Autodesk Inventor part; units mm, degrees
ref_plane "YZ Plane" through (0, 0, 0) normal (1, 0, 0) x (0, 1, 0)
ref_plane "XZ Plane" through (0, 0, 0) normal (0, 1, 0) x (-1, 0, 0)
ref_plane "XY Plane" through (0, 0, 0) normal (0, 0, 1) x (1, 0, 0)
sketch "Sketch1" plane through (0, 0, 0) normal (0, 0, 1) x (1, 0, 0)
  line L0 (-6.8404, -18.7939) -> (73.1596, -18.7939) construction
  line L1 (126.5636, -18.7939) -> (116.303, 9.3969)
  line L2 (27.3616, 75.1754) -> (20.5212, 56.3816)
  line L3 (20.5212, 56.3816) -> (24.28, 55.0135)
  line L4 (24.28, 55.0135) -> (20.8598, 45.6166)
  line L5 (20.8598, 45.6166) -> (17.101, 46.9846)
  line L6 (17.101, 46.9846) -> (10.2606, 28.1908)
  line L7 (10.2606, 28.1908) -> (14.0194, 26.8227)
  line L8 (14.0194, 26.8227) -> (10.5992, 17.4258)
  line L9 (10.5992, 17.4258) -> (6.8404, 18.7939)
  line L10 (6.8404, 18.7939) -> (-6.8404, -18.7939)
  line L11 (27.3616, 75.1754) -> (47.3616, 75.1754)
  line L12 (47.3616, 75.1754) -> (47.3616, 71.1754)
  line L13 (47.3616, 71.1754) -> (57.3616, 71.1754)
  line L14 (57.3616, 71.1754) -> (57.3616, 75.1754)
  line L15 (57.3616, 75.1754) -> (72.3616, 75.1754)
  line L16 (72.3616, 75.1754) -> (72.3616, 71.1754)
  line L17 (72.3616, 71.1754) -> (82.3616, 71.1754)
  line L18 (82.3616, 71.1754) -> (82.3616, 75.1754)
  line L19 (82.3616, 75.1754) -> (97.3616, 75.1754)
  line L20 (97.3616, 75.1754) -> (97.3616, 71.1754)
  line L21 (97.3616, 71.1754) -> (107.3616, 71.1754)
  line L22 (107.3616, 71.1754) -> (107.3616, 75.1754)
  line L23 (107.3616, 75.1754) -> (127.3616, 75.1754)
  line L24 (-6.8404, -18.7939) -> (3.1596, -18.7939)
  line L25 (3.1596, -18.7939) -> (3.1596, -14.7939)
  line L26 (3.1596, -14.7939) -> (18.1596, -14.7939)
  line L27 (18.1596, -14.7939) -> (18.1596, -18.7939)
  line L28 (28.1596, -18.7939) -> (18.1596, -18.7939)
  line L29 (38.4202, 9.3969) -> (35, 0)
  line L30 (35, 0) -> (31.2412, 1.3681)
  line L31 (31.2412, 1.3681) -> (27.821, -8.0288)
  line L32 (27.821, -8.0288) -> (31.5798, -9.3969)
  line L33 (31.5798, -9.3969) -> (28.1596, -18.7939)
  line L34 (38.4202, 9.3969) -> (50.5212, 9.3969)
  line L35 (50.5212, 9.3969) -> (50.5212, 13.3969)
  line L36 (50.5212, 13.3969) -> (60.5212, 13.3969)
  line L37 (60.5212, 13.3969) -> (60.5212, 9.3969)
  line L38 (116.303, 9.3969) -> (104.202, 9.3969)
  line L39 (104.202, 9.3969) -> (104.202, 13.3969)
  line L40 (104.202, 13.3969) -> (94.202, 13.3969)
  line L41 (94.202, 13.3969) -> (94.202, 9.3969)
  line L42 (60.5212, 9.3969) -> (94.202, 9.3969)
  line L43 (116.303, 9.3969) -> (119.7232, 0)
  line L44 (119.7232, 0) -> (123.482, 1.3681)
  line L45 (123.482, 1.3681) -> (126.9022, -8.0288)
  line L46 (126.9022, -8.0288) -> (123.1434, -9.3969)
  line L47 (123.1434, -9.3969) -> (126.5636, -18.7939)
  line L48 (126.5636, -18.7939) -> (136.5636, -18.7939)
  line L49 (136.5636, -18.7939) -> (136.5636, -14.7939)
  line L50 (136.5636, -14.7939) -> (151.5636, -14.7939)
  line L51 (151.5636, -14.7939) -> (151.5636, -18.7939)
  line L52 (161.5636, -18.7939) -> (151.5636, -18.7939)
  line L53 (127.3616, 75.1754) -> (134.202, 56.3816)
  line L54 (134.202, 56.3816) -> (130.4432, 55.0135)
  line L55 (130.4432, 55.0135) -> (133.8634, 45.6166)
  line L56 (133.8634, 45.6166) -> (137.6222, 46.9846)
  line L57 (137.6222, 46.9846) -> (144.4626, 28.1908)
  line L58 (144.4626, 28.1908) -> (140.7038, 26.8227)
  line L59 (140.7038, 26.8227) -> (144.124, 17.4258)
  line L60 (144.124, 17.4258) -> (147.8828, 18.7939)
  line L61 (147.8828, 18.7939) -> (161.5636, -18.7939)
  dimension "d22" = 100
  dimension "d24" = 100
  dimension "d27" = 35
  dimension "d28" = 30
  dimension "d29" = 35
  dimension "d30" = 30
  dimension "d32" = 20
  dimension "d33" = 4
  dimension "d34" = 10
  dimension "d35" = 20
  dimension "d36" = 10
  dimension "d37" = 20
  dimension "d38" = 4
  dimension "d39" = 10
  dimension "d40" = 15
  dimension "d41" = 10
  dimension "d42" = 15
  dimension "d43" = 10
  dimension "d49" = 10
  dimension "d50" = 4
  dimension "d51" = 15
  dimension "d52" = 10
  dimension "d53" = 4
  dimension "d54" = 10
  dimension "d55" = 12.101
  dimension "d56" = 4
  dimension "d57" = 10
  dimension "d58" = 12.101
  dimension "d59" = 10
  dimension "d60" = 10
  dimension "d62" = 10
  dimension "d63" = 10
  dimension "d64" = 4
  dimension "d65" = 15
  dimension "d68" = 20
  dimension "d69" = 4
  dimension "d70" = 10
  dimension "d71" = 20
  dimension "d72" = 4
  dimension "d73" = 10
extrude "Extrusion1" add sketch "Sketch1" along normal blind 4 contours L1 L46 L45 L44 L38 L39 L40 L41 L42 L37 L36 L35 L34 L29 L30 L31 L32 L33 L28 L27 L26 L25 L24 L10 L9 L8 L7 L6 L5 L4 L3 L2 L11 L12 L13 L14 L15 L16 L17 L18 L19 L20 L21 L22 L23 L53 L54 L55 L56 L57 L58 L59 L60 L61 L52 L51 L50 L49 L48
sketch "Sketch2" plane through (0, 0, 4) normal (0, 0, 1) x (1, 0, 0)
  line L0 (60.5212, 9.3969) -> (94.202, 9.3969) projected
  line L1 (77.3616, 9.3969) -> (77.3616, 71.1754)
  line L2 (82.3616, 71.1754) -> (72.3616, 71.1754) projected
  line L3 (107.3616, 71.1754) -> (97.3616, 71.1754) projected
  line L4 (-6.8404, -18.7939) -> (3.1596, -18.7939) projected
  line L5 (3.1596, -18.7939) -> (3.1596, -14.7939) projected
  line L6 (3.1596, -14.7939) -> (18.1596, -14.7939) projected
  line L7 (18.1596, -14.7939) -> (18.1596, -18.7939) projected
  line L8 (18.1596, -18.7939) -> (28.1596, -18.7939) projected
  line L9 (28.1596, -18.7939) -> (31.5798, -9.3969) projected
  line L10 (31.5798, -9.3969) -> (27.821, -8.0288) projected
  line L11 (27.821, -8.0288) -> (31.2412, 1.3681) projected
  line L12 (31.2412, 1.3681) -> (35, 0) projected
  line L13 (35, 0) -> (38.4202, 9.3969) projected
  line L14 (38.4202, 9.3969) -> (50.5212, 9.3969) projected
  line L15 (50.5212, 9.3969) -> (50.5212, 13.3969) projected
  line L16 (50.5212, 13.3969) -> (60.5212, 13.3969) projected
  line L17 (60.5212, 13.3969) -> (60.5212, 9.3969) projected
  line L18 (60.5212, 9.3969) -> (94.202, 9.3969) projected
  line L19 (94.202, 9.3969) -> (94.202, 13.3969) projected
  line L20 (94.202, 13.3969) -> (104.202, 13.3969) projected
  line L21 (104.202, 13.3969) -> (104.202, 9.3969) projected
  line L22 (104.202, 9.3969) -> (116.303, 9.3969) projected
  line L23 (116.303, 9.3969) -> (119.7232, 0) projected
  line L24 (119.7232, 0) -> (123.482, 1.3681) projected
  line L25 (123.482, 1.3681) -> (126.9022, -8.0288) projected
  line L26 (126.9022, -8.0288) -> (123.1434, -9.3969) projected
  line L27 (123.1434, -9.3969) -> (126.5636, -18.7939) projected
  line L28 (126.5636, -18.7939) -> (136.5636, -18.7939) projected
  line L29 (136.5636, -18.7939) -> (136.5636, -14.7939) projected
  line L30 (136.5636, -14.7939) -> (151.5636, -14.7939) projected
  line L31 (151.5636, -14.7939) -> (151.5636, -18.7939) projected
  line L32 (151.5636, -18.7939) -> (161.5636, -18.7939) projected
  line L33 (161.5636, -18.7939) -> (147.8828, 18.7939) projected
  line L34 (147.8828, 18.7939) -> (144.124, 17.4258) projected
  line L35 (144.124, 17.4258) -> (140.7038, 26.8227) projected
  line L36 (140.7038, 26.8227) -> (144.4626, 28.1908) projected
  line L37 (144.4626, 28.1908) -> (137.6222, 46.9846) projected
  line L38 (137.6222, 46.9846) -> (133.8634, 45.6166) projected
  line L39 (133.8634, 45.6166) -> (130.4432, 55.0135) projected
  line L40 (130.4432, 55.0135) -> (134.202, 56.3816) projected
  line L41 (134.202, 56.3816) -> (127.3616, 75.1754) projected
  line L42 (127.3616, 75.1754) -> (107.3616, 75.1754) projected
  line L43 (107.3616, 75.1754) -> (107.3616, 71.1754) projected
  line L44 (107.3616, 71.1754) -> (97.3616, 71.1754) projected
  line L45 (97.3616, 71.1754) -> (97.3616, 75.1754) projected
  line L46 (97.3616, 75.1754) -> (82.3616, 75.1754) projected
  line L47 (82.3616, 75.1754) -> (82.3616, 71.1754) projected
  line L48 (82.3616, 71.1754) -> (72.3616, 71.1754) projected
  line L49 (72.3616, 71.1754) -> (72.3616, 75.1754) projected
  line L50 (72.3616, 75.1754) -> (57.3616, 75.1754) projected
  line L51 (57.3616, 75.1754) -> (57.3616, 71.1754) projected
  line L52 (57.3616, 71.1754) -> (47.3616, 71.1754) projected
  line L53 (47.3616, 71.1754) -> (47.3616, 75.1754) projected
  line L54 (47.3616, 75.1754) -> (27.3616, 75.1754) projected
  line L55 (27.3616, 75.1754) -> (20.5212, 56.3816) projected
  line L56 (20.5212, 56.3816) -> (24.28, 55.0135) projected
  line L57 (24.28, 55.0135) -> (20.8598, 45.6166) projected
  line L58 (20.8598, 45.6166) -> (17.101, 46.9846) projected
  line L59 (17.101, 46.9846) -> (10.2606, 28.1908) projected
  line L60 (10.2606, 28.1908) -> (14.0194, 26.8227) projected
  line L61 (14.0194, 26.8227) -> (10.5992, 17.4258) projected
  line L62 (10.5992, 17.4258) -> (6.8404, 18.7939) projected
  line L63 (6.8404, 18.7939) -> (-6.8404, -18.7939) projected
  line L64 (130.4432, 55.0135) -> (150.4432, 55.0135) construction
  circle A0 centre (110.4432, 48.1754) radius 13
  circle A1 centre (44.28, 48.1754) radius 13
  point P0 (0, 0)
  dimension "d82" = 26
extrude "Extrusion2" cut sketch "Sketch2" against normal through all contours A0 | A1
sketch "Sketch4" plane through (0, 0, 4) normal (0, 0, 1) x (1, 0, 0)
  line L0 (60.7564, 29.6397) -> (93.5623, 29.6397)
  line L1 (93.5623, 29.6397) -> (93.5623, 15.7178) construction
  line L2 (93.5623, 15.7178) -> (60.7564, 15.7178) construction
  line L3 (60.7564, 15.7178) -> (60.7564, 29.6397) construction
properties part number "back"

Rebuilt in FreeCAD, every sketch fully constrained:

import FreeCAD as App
import Part
import Sketcher
Q = App.Units.Quantity

doc = App.newDocument("Part")
body = doc.addObject("PartDesign::Body", "Body")

sketch1 = body.newObject("Sketcher::SketchObject", "Sketch")
sketch1.AttachmentSupport = (doc.getObject("XY_Plane"), [""])
sketch1.MapMode = "FlatFace"
sketch1.addGeometry(Part.LineSegment(App.Vector(123.1, -9.4, 0), App.Vector(126.6, -18.8, 0)), False)
sketch1.addGeometry(Part.LineSegment(App.Vector(126.6, -18.8, 0), App.Vector(136.6, -18.8, 0)), False)
sketch1.addGeometry(Part.LineSegment(App.Vector(136.6, -18.8, 0), App.Vector(136.6, -14.8, 0)), False)
sketch1.addGeometry(Part.LineSegment(App.Vector(136.6, -14.8, 0), App.Vector(151.6, -14.8, 0)), False)
sketch1.addGeometry(Part.LineSegment(App.Vector(151.6, -14.8, 0), App.Vector(151.6, -18.8, 0)), False)
sketch1.addGeometry(Part.LineSegment(App.Vector(151.6, -18.8, 0), App.Vector(161.6, -18.8, 0)), False)
sketch1.addGeometry(Part.LineSegment(App.Vector(161.6, -18.8, 0), App.Vector(147.9, 18.8, 0)), False)
sketch1.addGeometry(Part.LineSegment(App.Vector(147.9, 18.8, 0), App.Vector(144.1, 17.4, 0)), False)
sketch1.addGeometry(Part.LineSegment(App.Vector(144.1, 17.4, 0), App.Vector(140.7, 26.8, 0)), False)
sketch1.addGeometry(Part.LineSegment(App.Vector(140.7, 26.8, 0), App.Vector(144.5, 28.2, 0)), False)
sketch1.addGeometry(Part.LineSegment(App.Vector(144.5, 28.2, 0), App.Vector(137.6, 47, 0)), False)
sketch1.addGeometry(Part.LineSegment(App.Vector(137.6, 47, 0), App.Vector(133.9, 45.6, 0)), False)
sketch1.addGeometry(Part.LineSegment(App.Vector(133.9, 45.6, 0), App.Vector(130.4, 55, 0)), False)
sketch1.addGeometry(Part.LineSegment(App.Vector(130.4, 55, 0), App.Vector(134.2, 56.4, 0)), False)
sketch1.addGeometry(Part.LineSegment(App.Vector(134.2, 56.4, 0), App.Vector(127.4, 75.2, 0)), False)
sketch1.addGeometry(Part.LineSegment(App.Vector(127.4, 75.2, 0), App.Vector(107.4, 75.2, 0)), False)
sketch1.addGeometry(Part.LineSegment(App.Vector(107.4, 75.2, 0), App.Vector(107.4, 71.2, 0)), False)
sketch1.addGeometry(Part.LineSegment(App.Vector(107.4, 71.2, 0), App.Vector(97.4, 71.2, 0)), False)
sketch1.addGeometry(Part.LineSegment(App.Vector(97.4, 71.2, 0), App.Vector(97.4, 75.2, 0)), False)
sketch1.addGeometry(Part.LineSegment(App.Vector(97.4, 75.2, 0), App.Vector(82.4, 75.2, 0)), False)
sketch1.addGeometry(Part.LineSegment(App.Vector(82.4, 75.2, 0), App.Vector(82.4, 71.2, 0)), False)
sketch1.addGeometry(Part.LineSegment(App.Vector(82.4, 71.2, 0), App.Vector(72.4, 71.2, 0)), False)
sketch1.addGeometry(Part.LineSegment(App.Vector(72.4, 71.2, 0), App.Vector(72.4, 75.2, 0)), False)
sketch1.addGeometry(Part.LineSegment(App.Vector(72.4, 75.2, 0), App.Vector(57.4, 75.2, 0)), False)
sketch1.addGeometry(Part.LineSegment(App.Vector(57.4, 75.2, 0), App.Vector(57.4, 71.2, 0)), False)
sketch1.addGeometry(Part.LineSegment(App.Vector(57.4, 71.2, 0), App.Vector(47.4, 71.2, 0)), False)
sketch1.addGeometry(Part.LineSegment(App.Vector(47.4, 71.2, 0), App.Vector(47.4, 75.2, 0)), False)
sketch1.addGeometry(Part.LineSegment(App.Vector(47.4, 75.2, 0), App.Vector(27.4, 75.2, 0)), False)
sketch1.addGeometry(Part.LineSegment(App.Vector(27.4, 75.2, 0), App.Vector(20.5, 56.4, 0)), False)
sketch1.addGeometry(Part.LineSegment(App.Vector(20.5, 56.4, 0), App.Vector(24.3, 55, 0)), False)
sketch1.addGeometry(Part.LineSegment(App.Vector(24.3, 55, 0), App.Vector(20.9, 45.6, 0)), False)
sketch1.addGeometry(Part.LineSegment(App.Vector(20.9, 45.6, 0), App.Vector(17.1, 47, 0)), False)
sketch1.addGeometry(Part.LineSegment(App.Vector(17.1, 47, 0), App.Vector(10.3, 28.2, 0)), False)
sketch1.addGeometry(Part.LineSegment(App.Vector(10.3, 28.2, 0), App.Vector(14, 26.8, 0)), False)
sketch1.addGeometry(Part.LineSegment(App.Vector(14, 26.8, 0), App.Vector(10.6, 17.4, 0)), False)
sketch1.addGeometry(Part.LineSegment(App.Vector(10.6, 17.4, 0), App.Vector(6.8, 18.8, 0)), False)
sketch1.addGeometry(Part.LineSegment(App.Vector(6.8, 18.8, 0), App.Vector(-6.8, -18.8, 0)), False)
sketch1.addGeometry(Part.LineSegment(App.Vector(-6.8, -18.8, 0), App.Vector(3.2, -18.8, 0)), False)
sketch1.addGeometry(Part.LineSegment(App.Vector(3.2, -18.8, 0), App.Vector(3.2, -14.8, 0)), False)
sketch1.addGeometry(Part.LineSegment(App.Vector(3.2, -14.8, 0), App.Vector(18.2, -14.8, 0)), False)
sketch1.addGeometry(Part.LineSegment(App.Vector(18.2, -14.8, 0), App.Vector(18.2, -18.8, 0)), False)
sketch1.addGeometry(Part.LineSegment(App.Vector(18.2, -18.8, 0), App.Vector(28.2, -18.8, 0)), False)
sketch1.addGeometry(Part.LineSegment(App.Vector(28.2, -18.8, 0), App.Vector(31.6, -9.4, 0)), False)
sketch1.addGeometry(Part.LineSegment(App.Vector(31.6, -9.4, 0), App.Vector(27.8, -8, 0)), False)
sketch1.addGeometry(Part.LineSegment(App.Vector(27.8, -8, 0), App.Vector(31.2, 1.4, 0)), False)
sketch1.addGeometry(Part.LineSegment(App.Vector(31.2, 1.4, 0), App.Vector(35, 0, 0)), False)
sketch1.addGeometry(Part.LineSegment(App.Vector(35, 0, 0), App.Vector(38.4, 9.4, 0)), False)
sketch1.addGeometry(Part.LineSegment(App.Vector(38.4, 9.4, 0), App.Vector(50.5, 9.4, 0)), False)
sketch1.addGeometry(Part.LineSegment(App.Vector(50.5, 9.4, 0), App.Vector(50.5, 13.4, 0)), False)
sketch1.addGeometry(Part.LineSegment(App.Vector(50.5, 13.4, 0), App.Vector(60.5, 13.4, 0)), False)
sketch1.addGeometry(Part.LineSegment(App.Vector(60.5, 13.4, 0), App.Vector(60.5, 9.4, 0)), False)
sketch1.addGeometry(Part.LineSegment(App.Vector(60.5, 9.4, 0), App.Vector(94.2, 9.4, 0)), False)
sketch1.addGeometry(Part.LineSegment(App.Vector(94.2, 9.4, 0), App.Vector(94.2, 13.4, 0)), False)
sketch1.addGeometry(Part.LineSegment(App.Vector(94.2, 13.4, 0), App.Vector(104.2, 13.4, 0)), False)
sketch1.addGeometry(Part.LineSegment(App.Vector(104.2, 13.4, 0), App.Vector(104.2, 9.4, 0)), False)
sketch1.addGeometry(Part.LineSegment(App.Vector(104.2, 9.4, 0), App.Vector(116.3, 9.4, 0)), False)
sketch1.addGeometry(Part.LineSegment(App.Vector(116.3, 9.4, 0), App.Vector(119.7, 0, 0)), False)
sketch1.addGeometry(Part.LineSegment(App.Vector(119.7, 0, 0), App.Vector(123.5, 1.4, 0)), False)
sketch1.addGeometry(Part.LineSegment(App.Vector(123.5, 1.4, 0), App.Vector(126.9, -8, 0)), False)
sketch1.addGeometry(Part.LineSegment(App.Vector(126.9, -8, 0), App.Vector(123.1, -9.4, 0)), False)
sketch1.addConstraint(Sketcher.Constraint("Coincident", 0, 2, 1, 1))
sketch1.addConstraint(Sketcher.Constraint("Coincident", 1, 2, 2, 1))
sketch1.addConstraint(Sketcher.Constraint("Coincident", 2, 2, 3, 1))
sketch1.addConstraint(Sketcher.Constraint("Coincident", 3, 2, 4, 1))
sketch1.addConstraint(Sketcher.Constraint("Coincident", 4, 2, 5, 1))
sketch1.addConstraint(Sketcher.Constraint("Coincident", 5, 2, 6, 1))
sketch1.addConstraint(Sketcher.Constraint("Coincident", 6, 2, 7, 1))
sketch1.addConstraint(Sketcher.Constraint("Coincident", 7, 2, 8, 1))
sketch1.addConstraint(Sketcher.Constraint("Coincident", 8, 2, 9, 1))
sketch1.addConstraint(Sketcher.Constraint("Coincident", 9, 2, 10, 1))
sketch1.addConstraint(Sketcher.Constraint("Coincident", 10, 2, 11, 1))
sketch1.addConstraint(Sketcher.Constraint("Coincident", 11, 2, 12, 1))
sketch1.addConstraint(Sketcher.Constraint("Coincident", 12, 2, 13, 1))
sketch1.addConstraint(Sketcher.Constraint("Coincident", 13, 2, 14, 1))
sketch1.addConstraint(Sketcher.Constraint("Coincident", 14, 2, 15, 1))
sketch1.addConstraint(Sketcher.Constraint("Coincident", 15, 2, 16, 1))
sketch1.addConstraint(Sketcher.Constraint("Coincident", 16, 2, 17, 1))
sketch1.addConstraint(Sketcher.Constraint("Coincident", 17, 2, 18, 1))
sketch1.addConstraint(Sketcher.Constraint("Coincident", 18, 2, 19, 1))
sketch1.addConstraint(Sketcher.Constraint("Coincident", 19, 2, 20, 1))
sketch1.addConstraint(Sketcher.Constraint("Coincident", 20, 2, 21, 1))
sketch1.addConstraint(Sketcher.Constraint("Coincident", 21, 2, 22, 1))
sketch1.addConstraint(Sketcher.Constraint("Coincident", 22, 2, 23, 1))
sketch1.addConstraint(Sketcher.Constraint("Coincident", 23, 2, 24, 1))
sketch1.addConstraint(Sketcher.Constraint("Coincident", 24, 2, 25, 1))
sketch1.addConstraint(Sketcher.Constraint("Coincident", 25, 2, 26, 1))
sketch1.addConstraint(Sketcher.Constraint("Coincident", 26, 2, 27, 1))
sketch1.addConstraint(Sketcher.Constraint("Coincident", 27, 2, 28, 1))
sketch1.addConstraint(Sketcher.Constraint("Coincident", 28, 2, 29, 1))
sketch1.addConstraint(Sketcher.Constraint("Coincident", 29, 2, 30, 1))
sketch1.addConstraint(Sketcher.Constraint("Coincident", 30, 2, 31, 1))
sketch1.addConstraint(Sketcher.Constraint("Coincident", 31, 2, 32, 1))
sketch1.addConstraint(Sketcher.Constraint("Coincident", 32, 2, 33, 1))
sketch1.addConstraint(Sketcher.Constraint("Coincident", 33, 2, 34, 1))
sketch1.addConstraint(Sketcher.Constraint("Coincident", 34, 2, 35, 1))
sketch1.addConstraint(Sketcher.Constraint("Coincident", 35, 2, 36, 1))
sketch1.addConstraint(Sketcher.Constraint("Coincident", 36, 2, 37, 1))
sketch1.addConstraint(Sketcher.Constraint("Coincident", 37, 2, 38, 1))
sketch1.addConstraint(Sketcher.Constraint("Coincident", 38, 2, 39, 1))
sketch1.addConstraint(Sketcher.Constraint("Coincident", 39, 2, 40, 1))
sketch1.addConstraint(Sketcher.Constraint("Coincident", 40, 2, 41, 1))
sketch1.addConstraint(Sketcher.Constraint("Coincident", 41, 2, 42, 1))
sketch1.addConstraint(Sketcher.Constraint("Coincident", 42, 2, 43, 1))
sketch1.addConstraint(Sketcher.Constraint("Coincident", 43, 2, 44, 1))
sketch1.addConstraint(Sketcher.Constraint("Coincident", 44, 2, 45, 1))
sketch1.addConstraint(Sketcher.Constraint("Coincident", 45, 2, 46, 1))
sketch1.addConstraint(Sketcher.Constraint("Coincident", 46, 2, 47, 1))
sketch1.addConstraint(Sketcher.Constraint("Coincident", 47, 2, 48, 1))
sketch1.addConstraint(Sketcher.Constraint("Coincident", 48, 2, 49, 1))
sketch1.addConstraint(Sketcher.Constraint("Coincident", 49, 2, 50, 1))
sketch1.addConstraint(Sketcher.Constraint("Coincident", 50, 2, 51, 1))
sketch1.addConstraint(Sketcher.Constraint("Coincident", 51, 2, 52, 1))
sketch1.addConstraint(Sketcher.Constraint("Coincident", 52, 2, 53, 1))
sketch1.addConstraint(Sketcher.Constraint("Coincident", 53, 2, 54, 1))
sketch1.addConstraint(Sketcher.Constraint("Coincident", 54, 2, 55, 1))
sketch1.addConstraint(Sketcher.Constraint("Coincident", 55, 2, 56, 1))
sketch1.addConstraint(Sketcher.Constraint("Coincident", 56, 2, 57, 1))
sketch1.addConstraint(Sketcher.Constraint("Coincident", 57, 2, 58, 1))
sketch1.addConstraint(Sketcher.Constraint("Coincident", 58, 2, 59, 1))
sketch1.addConstraint(Sketcher.Constraint("Coincident", 59, 2, 0, 1))
sketch1.addConstraint(Sketcher.Constraint("Horizontal", 1))
sketch1.addConstraint(Sketcher.Constraint("Vertical", 2))
sketch1.addConstraint(Sketcher.Constraint("Horizontal", 3))
sketch1.addConstraint(Sketcher.Constraint("Vertical", 4))
sketch1.addConstraint(Sketcher.Constraint("Horizontal", 5))
sketch1.addConstraint(Sketcher.Constraint("Horizontal", 15))
sketch1.addConstraint(Sketcher.Constraint("Vertical", 16))
sketch1.addConstraint(Sketcher.Constraint("Horizontal", 17))
sketch1.addConstraint(Sketcher.Constraint("Vertical", 18))
sketch1.addConstraint(Sketcher.Constraint("Horizontal", 19))
sketch1.addConstraint(Sketcher.Constraint("Vertical", 20))
sketch1.addConstraint(Sketcher.Constraint("Horizontal", 21))
sketch1.addConstraint(Sketcher.Constraint("Vertical", 22))
sketch1.addConstraint(Sketcher.Constraint("Horizontal", 23))
sketch1.addConstraint(Sketcher.Constraint("Vertical", 24))
sketch1.addConstraint(Sketcher.Constraint("Horizontal", 25))
sketch1.addConstraint(Sketcher.Constraint("Vertical", 26))
sketch1.addConstraint(Sketcher.Constraint("Horizontal", 27))
sketch1.addConstraint(Sketcher.Constraint("Horizontal", 37))
sketch1.addConstraint(Sketcher.Constraint("Vertical", 38))
sketch1.addConstraint(Sketcher.Constraint("Horizontal", 39))
sketch1.addConstraint(Sketcher.Constraint("Vertical", 40))
sketch1.addConstraint(Sketcher.Constraint("Horizontal", 41))
sketch1.addConstraint(Sketcher.Constraint("Horizontal", 47))
sketch1.addConstraint(Sketcher.Constraint("Vertical", 48))
sketch1.addConstraint(Sketcher.Constraint("Horizontal", 49))
sketch1.addConstraint(Sketcher.Constraint("Vertical", 50))
sketch1.addConstraint(Sketcher.Constraint("Horizontal", 51))
sketch1.addConstraint(Sketcher.Constraint("Vertical", 52))
sketch1.addConstraint(Sketcher.Constraint("Horizontal", 53))
sketch1.addConstraint(Sketcher.Constraint("Vertical", 54))
sketch1.addConstraint(Sketcher.Constraint("Horizontal", 55))
sketch1.addConstraint(Sketcher.Constraint("Symmetric", 35, 2, 36, 2, -1, 1))
sketch1.addConstraint(Sketcher.Constraint("PointOnObject", 45, 2, -1))
sketch1.addConstraint(Sketcher.Constraint("PointOnObject", 56, 2, -1))
sketch1.addConstraint(Sketcher.Constraint("Parallel", 0, 6))
sketch1.addConstraint(Sketcher.Constraint("Perpendicular", 6, 7))
sketch1.addConstraint(Sketcher.Constraint("Perpendicular", 7, 8))
sketch1.addConstraint(Sketcher.Constraint("Perpendicular", 8, 9))
sketch1.addConstraint(Sketcher.Constraint("Perpendicular", 9, 10))
sketch1.addConstraint(Sketcher.Constraint("Perpendicular", 10, 11))
sketch1.addConstraint(Sketcher.Constraint("Perpendicular", 11, 12))
sketch1.addConstraint(Sketcher.Constraint("Perpendicular", 12, 13))
sketch1.addConstraint(Sketcher.Constraint("Perpendicular", 13, 14))
sketch1.addConstraint(Sketcher.Constraint("Perpendicular", 28, 29))
sketch1.addConstraint(Sketcher.Constraint("Perpendicular", 29, 30))
sketch1.addConstraint(Sketcher.Constraint("Perpendicular", 30, 31))
sketch1.addConstraint(Sketcher.Constraint("Perpendicular", 31, 32))
sketch1.addConstraint(Sketcher.Constraint("Perpendicular", 32, 33))
sketch1.addConstraint(Sketcher.Constraint("Perpendicular", 33, 34))
sketch1.addConstraint(Sketcher.Constraint("Perpendicular", 34, 35))
sketch1.addConstraint(Sketcher.Constraint("Perpendicular", 35, 36))
sketch1.addConstraint(Sketcher.Constraint("Parallel", 36, 42))
sketch1.addConstraint(Sketcher.Constraint("Perpendicular", 42, 43))
sketch1.addConstraint(Sketcher.Constraint("Perpendicular", 43, 44))
sketch1.addConstraint(Sketcher.Constraint("Perpendicular", 44, 45))
sketch1.addConstraint(Sketcher.Constraint("Perpendicular", 45, 46))
sketch1.addConstraint(Sketcher.Constraint("Parallel", 14, 56))
sketch1.addConstraint(Sketcher.Constraint("Perpendicular", 56, 57))
sketch1.addConstraint(Sketcher.Constraint("Perpendicular", 57, 58))
sketch1.addConstraint(Sketcher.Constraint("Perpendicular", 58, 59))
sketch1.addConstraint(Sketcher.Constraint("Horizontal", 1, 2, 4, 2))
sketch1.addConstraint(Sketcher.Constraint("Horizontal", 15, 2, 18, 2))
sketch1.addConstraint(Sketcher.Constraint("Horizontal", 17, 2, 20, 2))
sketch1.addConstraint(Sketcher.Constraint("Horizontal", 19, 2, 22, 2))
sketch1.addConstraint(Sketcher.Constraint("Horizontal", 21, 2, 24, 2))
sketch1.addConstraint(Sketcher.Constraint("Horizontal", 23, 2, 26, 2))
sketch1.addConstraint(Sketcher.Constraint("Horizontal", 13, 2, 28, 2))
sketch1.addConstraint(Sketcher.Constraint("Horizontal", 12, 2, 29, 2))
sketch1.addConstraint(Sketcher.Constraint("Horizontal", 11, 2, 30, 2))
sketch1.addConstraint(Sketcher.Constraint("Horizontal", 10, 2, 31, 2))
sketch1.addConstraint(Sketcher.Constraint("Horizontal", 9, 2, 32, 2))
sketch1.addConstraint(Sketcher.Constraint("Horizontal", 8, 2, 33, 2))
sketch1.addConstraint(Sketcher.Constraint("Horizontal", 7, 2, 34, 2))
sketch1.addConstraint(Sketcher.Constraint("Horizontal", 6, 2, 35, 2))
sketch1.addConstraint(Sketcher.Constraint("Horizontal", 5, 2, 36, 2))
sketch1.addConstraint(Sketcher.Constraint("Horizontal", 3, 2, 38, 2))
sketch1.addConstraint(Sketcher.Constraint("Horizontal", 37, 2, 40, 2))
sketch1.addConstraint(Sketcher.Constraint("Horizontal", 47, 2, 50, 2))
sketch1.addConstraint(Sketcher.Constraint("Horizontal", 49, 2, 52, 2))
sketch1.addConstraint(Sketcher.Constraint("Horizontal", 51, 2, 54, 2))
sketch1.addConstraint(Sketcher.Constraint("Horizontal", 44, 2, 57, 2))
sketch1.addConstraint(Sketcher.Constraint("Horizontal", 43, 2, 58, 2))
sketch1.addConstraint(Sketcher.Constraint("Horizontal", 42, 2, 59, 2))
sketch1.addConstraint(Sketcher.Constraint("Equal", 1, 5))
sketch1.addConstraint(Sketcher.Constraint("Equal", 5, 17))
sketch1.addConstraint(Sketcher.Constraint("Equal", 3, 19))
sketch1.addConstraint(Sketcher.Constraint("Equal", 17, 21))
sketch1.addConstraint(Sketcher.Constraint("Equal", 19, 23))
sketch1.addConstraint(Sketcher.Constraint("Equal", 21, 25))
sketch1.addConstraint(Sketcher.Constraint("Equal", 15, 27))
sketch1.addConstraint(Sketcher.Constraint("Equal", 25, 37))
sketch1.addConstraint(Sketcher.Constraint("Equal", 23, 39))
sketch1.addConstraint(Sketcher.Constraint("Equal", 37, 41))
sketch1.addConstraint(Sketcher.Constraint("Equal", 41, 49))
sketch1.addConstraint(Sketcher.Constraint("Equal", 49, 53))
sketch1.addConstraint(Sketcher.Constraint("Equal", 47, 55))
sketch1.addConstraint(Sketcher.Constraint("Equal", 4, 16))
sketch1.addConstraint(Sketcher.Constraint("Equal", 40, 48))
sketch1.addConstraint(Sketcher.Constraint("Equal", 0, 8))
sketch1.addConstraint(Sketcher.Constraint("Equal", 7, 9))
sketch1.addConstraint(Sketcher.Constraint("Equal", 9, 11))
sketch1.addConstraint(Sketcher.Constraint("Equal", 8, 12))
sketch1.addConstraint(Sketcher.Constraint("Equal", 11, 13))
sketch1.addConstraint(Sketcher.Constraint("Equal", 10, 14))
sketch1.addConstraint(Sketcher.Constraint("Equal", 14, 28))
sketch1.addConstraint(Sketcher.Constraint("Equal", 35, 43))
sketch1.addConstraint(Sketcher.Constraint("Equal", 42, 44))
sketch1.addConstraint(Sketcher.Constraint("Equal", 43, 45))
sketch1.addConstraint(Sketcher.Constraint("Equal", 44, 46))
sketch1.addConstraint(Sketcher.Constraint("DistanceX", 1, 1, 1, 2, 10.0))
sketch1.addConstraint(Sketcher.Constraint("DistanceX", 3, 1, 3, 2, 15.0))
sketch1.addConstraint(Sketcher.Constraint("DistanceX", 15, 2, 15, 1, 20.0))
sketch1.addConstraint(Sketcher.Constraint("DistanceY", 2, 1, 2, 2, 4.0))
sketch1.addConstraint(Sketcher.Constraint("Angle", 9, Q("20 deg")))
sketch1.addConstraint(Sketcher.Constraint("Distance", 0, 10.0))
sketch1.addConstraint(Sketcher.Constraint("Distance", 7, 4.0))
sketch1.addConstraint(Sketcher.Constraint("Distance", 10, 20.0))
sketch1.addConstraint(Sketcher.Constraint("DistanceX", 47, 1, 47, 2, 12.101))
pad1 = body.newObject("PartDesign::Pad", "Pad")
pad1.Profile = sketch1
pad1.Length = 4

sketch2 = body.newObject("Sketcher::SketchObject", "Sketch001")
sketch2.AttachmentSupport = (doc.getObject("XY_Plane"), [""])
sketch2.MapMode = "FlatFace"
sketch2.AttachmentOffset = App.Placement(App.Vector(0, 0, 4), App.Rotation())
sketch2.addGeometry(Part.Circle(App.Vector(110, 48, 0), App.Vector(0, 0, 1), 13), False)
sketch2.addGeometry(Part.Circle(App.Vector(44, 48, 0), App.Vector(0, 0, 1), 13), False)
sketch2.addConstraint(Sketcher.Constraint("Equal", 0, 1))
sketch2.addConstraint(Sketcher.Constraint("Horizontal", 0, 3, 1, 3))
sketch2.addConstraint(Sketcher.Constraint("Diameter", 0, 26.0))
sketch2.addConstraint(Sketcher.Constraint("DistanceX", -1, 1, 1, 3, 44.28))
sketch2.addConstraint(Sketcher.Constraint("DistanceX", -1, 1, 0, 3, 110.4432))
sketch2.addConstraint(Sketcher.Constraint("DistanceY", -1, 1, 0, 3, 48.1754))
pocket1 = body.newObject("PartDesign::Pocket", "Pocket")
pocket1.Profile = sketch2
pocket1.Type = "ThroughAll"

doc.recompute()
